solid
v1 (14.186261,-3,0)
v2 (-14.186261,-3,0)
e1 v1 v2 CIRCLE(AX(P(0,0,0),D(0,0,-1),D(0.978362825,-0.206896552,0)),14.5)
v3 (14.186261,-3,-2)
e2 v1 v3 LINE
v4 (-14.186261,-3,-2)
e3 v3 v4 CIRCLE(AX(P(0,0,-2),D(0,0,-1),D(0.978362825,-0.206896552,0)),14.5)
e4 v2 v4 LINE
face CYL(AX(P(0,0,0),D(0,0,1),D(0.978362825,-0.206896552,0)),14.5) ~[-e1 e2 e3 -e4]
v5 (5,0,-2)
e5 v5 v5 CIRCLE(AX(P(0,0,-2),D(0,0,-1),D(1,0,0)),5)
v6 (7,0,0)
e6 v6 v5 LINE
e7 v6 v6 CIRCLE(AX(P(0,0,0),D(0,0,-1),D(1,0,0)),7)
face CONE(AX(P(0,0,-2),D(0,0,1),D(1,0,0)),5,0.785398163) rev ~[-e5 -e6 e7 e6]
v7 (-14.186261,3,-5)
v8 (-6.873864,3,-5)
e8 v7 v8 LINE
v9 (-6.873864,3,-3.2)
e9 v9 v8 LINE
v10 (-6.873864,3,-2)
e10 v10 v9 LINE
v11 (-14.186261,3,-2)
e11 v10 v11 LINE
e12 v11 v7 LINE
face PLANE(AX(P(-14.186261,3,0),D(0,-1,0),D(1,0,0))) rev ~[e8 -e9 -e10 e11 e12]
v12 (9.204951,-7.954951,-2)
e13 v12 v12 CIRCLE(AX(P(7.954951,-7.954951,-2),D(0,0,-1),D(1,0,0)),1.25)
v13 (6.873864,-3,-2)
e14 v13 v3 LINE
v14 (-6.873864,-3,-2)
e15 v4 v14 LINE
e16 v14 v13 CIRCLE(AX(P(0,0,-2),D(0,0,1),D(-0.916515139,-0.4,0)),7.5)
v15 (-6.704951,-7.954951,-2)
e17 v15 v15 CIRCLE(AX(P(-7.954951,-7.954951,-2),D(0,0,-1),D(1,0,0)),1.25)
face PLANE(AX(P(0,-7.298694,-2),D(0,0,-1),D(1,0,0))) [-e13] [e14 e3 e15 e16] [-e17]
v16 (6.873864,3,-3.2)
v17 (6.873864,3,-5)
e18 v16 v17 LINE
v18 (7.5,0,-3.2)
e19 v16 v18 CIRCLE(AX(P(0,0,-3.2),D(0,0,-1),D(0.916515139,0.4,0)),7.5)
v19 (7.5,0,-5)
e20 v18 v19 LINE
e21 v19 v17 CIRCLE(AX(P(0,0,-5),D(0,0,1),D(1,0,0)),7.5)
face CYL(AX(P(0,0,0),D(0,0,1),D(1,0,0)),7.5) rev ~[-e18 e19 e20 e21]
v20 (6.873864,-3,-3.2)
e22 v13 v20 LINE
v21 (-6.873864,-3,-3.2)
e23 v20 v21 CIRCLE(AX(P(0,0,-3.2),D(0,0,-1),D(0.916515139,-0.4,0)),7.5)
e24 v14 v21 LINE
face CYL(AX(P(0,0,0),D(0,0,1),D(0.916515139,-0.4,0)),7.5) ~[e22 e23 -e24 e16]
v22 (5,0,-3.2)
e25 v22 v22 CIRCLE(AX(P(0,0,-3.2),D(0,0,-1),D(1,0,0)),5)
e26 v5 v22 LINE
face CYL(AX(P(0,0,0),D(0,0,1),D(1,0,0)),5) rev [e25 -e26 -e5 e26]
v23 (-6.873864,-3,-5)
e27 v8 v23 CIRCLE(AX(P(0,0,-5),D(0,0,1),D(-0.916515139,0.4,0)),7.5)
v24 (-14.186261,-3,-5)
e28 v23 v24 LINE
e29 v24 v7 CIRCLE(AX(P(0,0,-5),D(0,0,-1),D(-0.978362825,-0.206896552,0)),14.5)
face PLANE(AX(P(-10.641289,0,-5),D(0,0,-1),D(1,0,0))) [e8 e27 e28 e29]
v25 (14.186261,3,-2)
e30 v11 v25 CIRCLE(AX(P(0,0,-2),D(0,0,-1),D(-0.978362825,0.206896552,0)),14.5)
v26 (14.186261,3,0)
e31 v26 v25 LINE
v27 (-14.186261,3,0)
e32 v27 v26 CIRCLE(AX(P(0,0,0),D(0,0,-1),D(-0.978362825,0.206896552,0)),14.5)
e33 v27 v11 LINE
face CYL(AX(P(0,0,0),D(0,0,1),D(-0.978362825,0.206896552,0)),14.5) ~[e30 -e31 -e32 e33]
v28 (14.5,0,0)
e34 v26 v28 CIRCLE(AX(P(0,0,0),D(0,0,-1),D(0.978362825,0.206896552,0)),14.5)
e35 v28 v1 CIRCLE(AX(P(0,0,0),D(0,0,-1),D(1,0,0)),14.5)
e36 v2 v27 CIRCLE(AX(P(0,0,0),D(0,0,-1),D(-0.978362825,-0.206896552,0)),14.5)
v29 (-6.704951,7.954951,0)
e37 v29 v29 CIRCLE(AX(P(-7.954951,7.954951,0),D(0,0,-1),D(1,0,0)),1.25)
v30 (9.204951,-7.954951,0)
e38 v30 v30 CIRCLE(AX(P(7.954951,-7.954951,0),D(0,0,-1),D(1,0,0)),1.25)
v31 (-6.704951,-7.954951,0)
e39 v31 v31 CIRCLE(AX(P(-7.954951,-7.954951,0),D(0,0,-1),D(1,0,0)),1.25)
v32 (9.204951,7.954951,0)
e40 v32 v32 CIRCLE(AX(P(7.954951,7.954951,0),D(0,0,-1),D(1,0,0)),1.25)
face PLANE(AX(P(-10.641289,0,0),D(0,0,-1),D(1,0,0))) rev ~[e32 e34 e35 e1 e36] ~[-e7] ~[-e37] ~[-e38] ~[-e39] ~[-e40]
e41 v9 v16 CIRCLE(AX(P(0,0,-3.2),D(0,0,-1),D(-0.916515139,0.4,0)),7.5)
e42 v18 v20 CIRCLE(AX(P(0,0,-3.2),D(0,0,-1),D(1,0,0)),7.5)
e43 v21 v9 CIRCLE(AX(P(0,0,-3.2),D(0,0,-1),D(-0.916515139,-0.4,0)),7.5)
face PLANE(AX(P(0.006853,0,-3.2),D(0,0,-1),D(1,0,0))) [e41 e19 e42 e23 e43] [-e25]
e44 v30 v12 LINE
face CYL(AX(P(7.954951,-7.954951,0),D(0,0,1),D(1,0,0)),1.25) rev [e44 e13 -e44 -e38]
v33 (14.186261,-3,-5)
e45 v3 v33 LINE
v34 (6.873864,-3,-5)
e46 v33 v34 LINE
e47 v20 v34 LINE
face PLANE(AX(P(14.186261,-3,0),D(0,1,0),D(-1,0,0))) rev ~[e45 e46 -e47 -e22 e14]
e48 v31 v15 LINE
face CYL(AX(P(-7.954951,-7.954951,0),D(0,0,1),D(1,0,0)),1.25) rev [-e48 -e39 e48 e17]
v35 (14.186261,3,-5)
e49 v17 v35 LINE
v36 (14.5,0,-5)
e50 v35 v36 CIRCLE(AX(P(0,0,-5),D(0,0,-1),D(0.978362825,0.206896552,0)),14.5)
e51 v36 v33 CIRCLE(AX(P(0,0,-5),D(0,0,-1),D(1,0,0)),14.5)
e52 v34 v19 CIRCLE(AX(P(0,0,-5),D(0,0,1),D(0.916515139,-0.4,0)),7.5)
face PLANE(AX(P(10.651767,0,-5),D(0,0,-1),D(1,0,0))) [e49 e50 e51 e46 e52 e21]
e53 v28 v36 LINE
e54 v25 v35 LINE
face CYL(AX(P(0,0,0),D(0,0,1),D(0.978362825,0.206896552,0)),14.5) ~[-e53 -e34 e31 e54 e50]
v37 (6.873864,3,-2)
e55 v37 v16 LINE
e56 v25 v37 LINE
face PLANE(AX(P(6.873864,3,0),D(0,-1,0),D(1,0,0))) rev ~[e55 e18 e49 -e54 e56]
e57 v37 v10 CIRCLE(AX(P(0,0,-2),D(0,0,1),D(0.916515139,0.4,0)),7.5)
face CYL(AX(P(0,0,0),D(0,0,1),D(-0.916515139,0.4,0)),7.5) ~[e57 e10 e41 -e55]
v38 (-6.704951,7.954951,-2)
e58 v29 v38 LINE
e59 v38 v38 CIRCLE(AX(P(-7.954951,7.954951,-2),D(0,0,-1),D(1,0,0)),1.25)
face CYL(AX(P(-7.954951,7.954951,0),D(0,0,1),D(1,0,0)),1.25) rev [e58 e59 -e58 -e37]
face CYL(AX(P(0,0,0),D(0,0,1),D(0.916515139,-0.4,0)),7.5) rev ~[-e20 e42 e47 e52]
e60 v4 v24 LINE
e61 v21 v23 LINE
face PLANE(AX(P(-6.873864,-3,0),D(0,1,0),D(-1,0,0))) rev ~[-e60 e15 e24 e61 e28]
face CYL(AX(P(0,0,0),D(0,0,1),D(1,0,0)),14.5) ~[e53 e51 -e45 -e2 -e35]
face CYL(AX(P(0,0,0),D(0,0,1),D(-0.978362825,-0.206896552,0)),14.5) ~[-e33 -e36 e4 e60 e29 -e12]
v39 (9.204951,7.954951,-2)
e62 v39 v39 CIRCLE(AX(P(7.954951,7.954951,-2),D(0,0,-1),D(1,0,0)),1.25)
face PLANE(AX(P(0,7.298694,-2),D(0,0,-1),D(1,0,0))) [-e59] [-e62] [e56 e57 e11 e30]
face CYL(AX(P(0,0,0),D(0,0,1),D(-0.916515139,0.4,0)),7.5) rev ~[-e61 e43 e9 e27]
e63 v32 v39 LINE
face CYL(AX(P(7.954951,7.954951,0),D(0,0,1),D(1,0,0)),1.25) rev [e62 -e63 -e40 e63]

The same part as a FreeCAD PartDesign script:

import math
import FreeCAD as App
import Part
import Sketcher

V = App.Vector


def edges_at(feature, points):
    """Names of the edges that pass closest to the given points."""
    edges = feature.Shape.Edges
    near = lambda p: min(range(len(edges)), key=lambda i: edges[i].distToShape(Part.Vertex(*p))[0])
    return sorted({f"Edge{near(p) + 1}" for p in points})

doc = App.newDocument("Part")
body = doc.addObject("PartDesign::Body", "Body")

# Sketch on XY plane
sketch1 = body.newObject("Sketcher::SketchObject", "Sketch")
sketch1.AttachmentSupport = (doc.getObject("XY_Plane"), [""])
sketch1.MapMode = "FlatFace"
sketch1.addGeometry([
    Part.ArcOfCircle(Part.Circle(V(0, 0, 0), V(0, 0, 1), 7.5), math.radians(0), math.radians(24)),  # 0
    Part.ArcOfCircle(Part.Circle(V(0, 0, 0), V(0, 0, 1), 7.5), math.radians(24), math.radians(156)),  # 1
    Part.ArcOfCircle(Part.Circle(V(0, 0, 0), V(0, 0, 1), 7.5), math.radians(156), math.radians(204)),  # 2
    Part.ArcOfCircle(Part.Circle(V(0, 0, 0), V(0, 0, 1), 7.5), math.radians(-156), math.radians(-24)),  # 3
    Part.ArcOfCircle(Part.Circle(V(0, 0, 0), V(0, 0, 1), 7.5), math.radians(-24), math.radians(0)),  # 4
    Part.Circle(V(0, 0, 0), V(0, 0, 1), 5),  # 5
], False)
sketch1.addConstraint([
    Sketcher.Constraint("Tangent", 0, 2, 1, 1),
    Sketcher.Constraint("Tangent", 1, 2, 2, 1),
    Sketcher.Constraint("Tangent", 2, 2, 3, 1),
    Sketcher.Constraint("Tangent", 3, 2, 4, 1),
    Sketcher.Constraint("Tangent", 4, 2, 0, 1),
    Sketcher.Constraint("Coincident", 0, 3, -1, 1),
    Sketcher.Constraint("Coincident", 2, 3, -1, 1),
    Sketcher.Constraint("Coincident", 5, 3, -1, 1),
    Sketcher.Constraint("PointOnObject", 4, 2, -1),
    Sketcher.Constraint("Horizontal", 0, 2, 1, 2),
    Sketcher.Constraint("Horizontal", 2, 2, 3, 2),
    Sketcher.Constraint("Vertical", 1, 2, 2, 2),
    Sketcher.Constraint("Diameter", 5, 10.0),
    Sketcher.Constraint("Radius", 0, 7.5),
    Sketcher.Constraint("DistanceY", -1, 1, 0, 2, 3.0),
])
pad1 = body.newObject("PartDesign::Pad", "Pad")
pad1.Profile = sketch1
pad1.Length = 3.2

# Sketch on XY plane
sketch2 = body.newObject("Sketcher::SketchObject", "Sketch001")
sketch2.AttachmentSupport = (doc.getObject("XY_Plane"), [""])
sketch2.MapMode = "FlatFace"
sketch2.addGeometry([
    Part.LineSegment(V(6.9, 3, 0), V(14.2, 3, 0)),  # 0
    Part.ArcOfCircle(Part.Circle(V(0, 0, 0), V(0, 0, 1), 14.5), math.radians(12), math.radians(168)),  # 1
    Part.LineSegment(V(-14.2, 3, 0), V(-6.9, 3, 0)),  # 2
    Part.ArcOfCircle(Part.Circle(V(0, 0, 0), V(0, 0, 1), 7.5), math.radians(24), math.radians(156)),  # 3
    Part.Circle(V(-8, 8, 0), V(0, 0, 1), 1.2),  # 4
    Part.Circle(V(8, 8, 0), V(0, 0, 1), 1.2),  # 5
    Part.ArcOfCircle(Part.Circle(V(0, 0, 0), V(0, 0, 1), 14.5), math.radians(-168), math.radians(-12)),  # 6
    Part.LineSegment(V(14.2, -3, 0), V(6.9, -3, 0)),  # 7
    Part.ArcOfCircle(Part.Circle(V(0, 0, 0), V(0, 0, 1), 7.5), math.radians(-156), math.radians(-24)),  # 8
    Part.LineSegment(V(-6.9, -3, 0), V(-14.2, -3, 0)),  # 9
    Part.Circle(V(-8, -8, 0), V(0, 0, 1), 1.2),  # 10
    Part.Circle(V(8, -8, 0), V(0, 0, 1), 1.2),  # 11
], False)
sketch2.addConstraint([
    Sketcher.Constraint("Coincident", 0, 2, 1, 1),
    Sketcher.Constraint("Coincident", 1, 2, 2, 1),
    Sketcher.Constraint("Coincident", 2, 2, 3, 2),
    Sketcher.Constraint("Coincident", 3, 1, 0, 1),
    Sketcher.Constraint("Coincident", 6, 2, 7, 1),
    Sketcher.Constraint("Coincident", 7, 2, 8, 2),
    Sketcher.Constraint("Coincident", 8, 1, 9, 1),
    Sketcher.Constraint("Coincident", 9, 2, 6, 1),
    Sketcher.Constraint("Horizontal", 0),
    Sketcher.Constraint("Horizontal", 2),
    Sketcher.Constraint("Horizontal", 7),
    Sketcher.Constraint("Horizontal", 9),
    Sketcher.Constraint("Coincident", 1, 3, -1, 1),
    Sketcher.Constraint("Coincident", 3, 3, -1, 1),
    Sketcher.Constraint("Coincident", 6, 3, -1, 1),
    Sketcher.Constraint("Coincident", 8, 3, -1, 1),
    Sketcher.Constraint("Equal", 4, 5),
    Sketcher.Constraint("Equal", 1, 6),
    Sketcher.Constraint("Equal", 3, 8),
    Sketcher.Constraint("Equal", 5, 10),
    Sketcher.Constraint("Equal", 10, 11),
    Sketcher.Constraint("Symmetric", 5, 3, 10, 3, -1, 1),
    Sketcher.Constraint("Symmetric", 4, 3, 11, 3, -1, 1),
    Sketcher.Constraint("Symmetric", 4, 3, 5, 3, -2),
    Sketcher.Constraint("Horizontal", 0, 2, 1, 2),
    Sketcher.Constraint("Horizontal", 7, 2, 8, 1),
    Sketcher.Constraint("Vertical", 0, 2, 6, 2),
    Sketcher.Constraint("Diameter", 4, 2.5),
    Sketcher.Constraint("Radius", 1, 14.5),
    Sketcher.Constraint("Radius", 3, 7.5),
    Sketcher.Constraint("DistanceY", -1, 1, 0, 2, 3.0),
    Sketcher.Constraint("DistanceX", 4, 3, -1, 1, 7.954951),
    Sketcher.Constraint("DistanceY", -1, 1, 4, 3, 7.954951),
])
pad2 = body.newObject("PartDesign::Pad", "Pad001")
pad2.Profile = sketch2
pad2.Length = 2

# Sketch on XY plane
sketch3 = body.newObject("Sketcher::SketchObject", "Sketch002")
sketch3.AttachmentSupport = (doc.getObject("XY_Plane"), [""])
sketch3.MapMode = "FlatFace"
sketch3.addGeometry([
    Part.LineSegment(V(-6.9, 3, 0), V(-14.2, 3, 0)),  # 0
    Part.ArcOfCircle(Part.Circle(V(0, 0, 0), V(0, 0, 1), 14.5), math.radians(168), math.radians(192)),  # 1
    Part.LineSegment(V(-14.2, -3, 0), V(-6.9, -3, 0)),  # 2
    Part.ArcOfCircle(Part.Circle(V(0, 0, 0), V(0, 0, 1), 7.5), math.radians(156), math.radians(204)),  # 3
    Part.ArcOfCircle(Part.Circle(V(0, 0, 0), V(0, 0, 1), 14.5), math.radians(-11.94), math.radians(0)),  # 4
    Part.ArcOfCircle(Part.Circle(V(0, 0, 0), V(0, 0, 1), 14.5), math.radians(0), math.radians(11.94)),  # 5
    Part.LineSegment(V(14.2, 3, 0), V(6.9, 3, 0)),  # 6
    Part.ArcOfCircle(Part.Circle(V(0, 0, 0), V(0, 0, 1), 7.5), math.radians(0), math.radians(24)),  # 7
    Part.ArcOfCircle(Part.Circle(V(0, 0, 0), V(0, 0, 1), 7.5), math.radians(-24), math.radians(0)),  # 8
    Part.LineSegment(V(6.9, -3, 0), V(14.2, -3, 0)),  # 9
], False)
sketch3.addConstraint([
    Sketcher.Constraint("Coincident", 0, 2, 1, 1),
    Sketcher.Constraint("Coincident", 1, 2, 2, 1),
    Sketcher.Constraint("Coincident", 2, 2, 3, 2),
    Sketcher.Constraint("Coincident", 3, 1, 0, 1),
    Sketcher.Constraint("Tangent", 4, 2, 5, 1),
    Sketcher.Constraint("Coincident", 5, 2, 6, 1),
    Sketcher.Constraint("Coincident", 6, 2, 7, 2),
    Sketcher.Constraint("Tangent", 7, 1, 8, 2),
    Sketcher.Constraint("Coincident", 8, 1, 9, 1),
    Sketcher.Constraint("Coincident", 9, 2, 4, 1),
    Sketcher.Constraint("Horizontal", 0),
    Sketcher.Constraint("Horizontal", 2),
    Sketcher.Constraint("Horizontal", 6),
    Sketcher.Constraint("Horizontal", 9),
    Sketcher.Constraint("Coincident", 1, 3, -1, 1),
    Sketcher.Constraint("Coincident", 3, 3, -1, 1),
    Sketcher.Constraint("Coincident", 4, 3, -1, 1),
    Sketcher.Constraint("Coincident", 7, 3, -1, 1),
    Sketcher.Constraint("Equal", 1, 4),
    Sketcher.Constraint("Equal", 4, 5),
    Sketcher.Constraint("Equal", 3, 7),
    Sketcher.Constraint("Equal", 7, 8),
    Sketcher.Constraint("PointOnObject", 4, 2, -1),
    Sketcher.Constraint("PointOnObject", 7, 1, -1),
    Sketcher.Constraint("Horizontal", 3, 1, 5, 2),
    Sketcher.Constraint("Horizontal", 2, 2, 8, 1),
    Sketcher.Constraint("Vertical", 0, 2, 1, 2),
    Sketcher.Constraint("Radius", 1, 14.5),
    Sketcher.Constraint("Radius", 3, 7.5),
    Sketcher.Constraint("DistanceY", -1, 1, 0, 2, 3.0),
])
pad3 = body.newObject("PartDesign::Pad", "Pad002")
pad3.Profile = sketch3
pad3.Length = 5
doc.recompute()

chamfer = body.newObject("PartDesign::Chamfer", "Chamfer")
chamfer.Base = (pad3, edges_at(pad3, [(-5, 0, 0)]))
chamfer.Size = 2
body2 = doc.addObject("PartDesign::Body", "Body001")
doc.recompute()

body.Placement = App.Placement(V(0, 0, 0), App.Rotation(V(1, 0, 0), 180))
boolean = body2.newObject("PartDesign::Boolean", "Boolean")
boolean.Type = "Fuse"
boolean.addObjects([body])

doc.recompute()
